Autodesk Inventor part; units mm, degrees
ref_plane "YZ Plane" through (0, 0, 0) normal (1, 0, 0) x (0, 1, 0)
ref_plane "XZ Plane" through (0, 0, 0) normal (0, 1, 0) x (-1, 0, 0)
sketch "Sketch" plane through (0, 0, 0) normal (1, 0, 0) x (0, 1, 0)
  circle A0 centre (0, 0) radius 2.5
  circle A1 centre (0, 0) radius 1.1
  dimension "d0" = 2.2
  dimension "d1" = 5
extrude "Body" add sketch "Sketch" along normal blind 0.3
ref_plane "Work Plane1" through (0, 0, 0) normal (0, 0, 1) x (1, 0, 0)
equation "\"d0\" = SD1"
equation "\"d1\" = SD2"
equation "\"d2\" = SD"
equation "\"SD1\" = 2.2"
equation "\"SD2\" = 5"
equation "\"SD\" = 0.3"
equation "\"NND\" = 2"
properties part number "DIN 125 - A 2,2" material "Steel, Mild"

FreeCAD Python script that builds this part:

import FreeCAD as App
import Part
import Sketcher

doc = App.newDocument("Part")
body = doc.addObject("PartDesign::Body", "Body")

# Sketch on YZ plane
sketch1 = body.newObject("Sketcher::SketchObject", "Sketch")
sketch1.AttachmentSupport = (doc.getObject("YZ_Plane"), [""])
sketch1.MapMode = "FlatFace"
sketch1.addGeometry([
    Part.Circle(App.Vector(0, 0, 0), App.Vector(0, 0, 1), 2.5),
    Part.Circle(App.Vector(0, 0, 0), App.Vector(0, 0, 1), 1.1),
], False)
sketch1.addConstraint([
    Sketcher.Constraint("Coincident", 0, 3, -1, 1),
    Sketcher.Constraint("Coincident", 1, 3, -1, 1),
    Sketcher.Constraint("Diameter", 0, 5.0),
    Sketcher.Constraint("Diameter", 1, 2.2),
])
pad1 = body.newObject("PartDesign::Pad", "Pad")
pad1.Profile = sketch1
pad1.Length = 0.3

doc.recompute()
